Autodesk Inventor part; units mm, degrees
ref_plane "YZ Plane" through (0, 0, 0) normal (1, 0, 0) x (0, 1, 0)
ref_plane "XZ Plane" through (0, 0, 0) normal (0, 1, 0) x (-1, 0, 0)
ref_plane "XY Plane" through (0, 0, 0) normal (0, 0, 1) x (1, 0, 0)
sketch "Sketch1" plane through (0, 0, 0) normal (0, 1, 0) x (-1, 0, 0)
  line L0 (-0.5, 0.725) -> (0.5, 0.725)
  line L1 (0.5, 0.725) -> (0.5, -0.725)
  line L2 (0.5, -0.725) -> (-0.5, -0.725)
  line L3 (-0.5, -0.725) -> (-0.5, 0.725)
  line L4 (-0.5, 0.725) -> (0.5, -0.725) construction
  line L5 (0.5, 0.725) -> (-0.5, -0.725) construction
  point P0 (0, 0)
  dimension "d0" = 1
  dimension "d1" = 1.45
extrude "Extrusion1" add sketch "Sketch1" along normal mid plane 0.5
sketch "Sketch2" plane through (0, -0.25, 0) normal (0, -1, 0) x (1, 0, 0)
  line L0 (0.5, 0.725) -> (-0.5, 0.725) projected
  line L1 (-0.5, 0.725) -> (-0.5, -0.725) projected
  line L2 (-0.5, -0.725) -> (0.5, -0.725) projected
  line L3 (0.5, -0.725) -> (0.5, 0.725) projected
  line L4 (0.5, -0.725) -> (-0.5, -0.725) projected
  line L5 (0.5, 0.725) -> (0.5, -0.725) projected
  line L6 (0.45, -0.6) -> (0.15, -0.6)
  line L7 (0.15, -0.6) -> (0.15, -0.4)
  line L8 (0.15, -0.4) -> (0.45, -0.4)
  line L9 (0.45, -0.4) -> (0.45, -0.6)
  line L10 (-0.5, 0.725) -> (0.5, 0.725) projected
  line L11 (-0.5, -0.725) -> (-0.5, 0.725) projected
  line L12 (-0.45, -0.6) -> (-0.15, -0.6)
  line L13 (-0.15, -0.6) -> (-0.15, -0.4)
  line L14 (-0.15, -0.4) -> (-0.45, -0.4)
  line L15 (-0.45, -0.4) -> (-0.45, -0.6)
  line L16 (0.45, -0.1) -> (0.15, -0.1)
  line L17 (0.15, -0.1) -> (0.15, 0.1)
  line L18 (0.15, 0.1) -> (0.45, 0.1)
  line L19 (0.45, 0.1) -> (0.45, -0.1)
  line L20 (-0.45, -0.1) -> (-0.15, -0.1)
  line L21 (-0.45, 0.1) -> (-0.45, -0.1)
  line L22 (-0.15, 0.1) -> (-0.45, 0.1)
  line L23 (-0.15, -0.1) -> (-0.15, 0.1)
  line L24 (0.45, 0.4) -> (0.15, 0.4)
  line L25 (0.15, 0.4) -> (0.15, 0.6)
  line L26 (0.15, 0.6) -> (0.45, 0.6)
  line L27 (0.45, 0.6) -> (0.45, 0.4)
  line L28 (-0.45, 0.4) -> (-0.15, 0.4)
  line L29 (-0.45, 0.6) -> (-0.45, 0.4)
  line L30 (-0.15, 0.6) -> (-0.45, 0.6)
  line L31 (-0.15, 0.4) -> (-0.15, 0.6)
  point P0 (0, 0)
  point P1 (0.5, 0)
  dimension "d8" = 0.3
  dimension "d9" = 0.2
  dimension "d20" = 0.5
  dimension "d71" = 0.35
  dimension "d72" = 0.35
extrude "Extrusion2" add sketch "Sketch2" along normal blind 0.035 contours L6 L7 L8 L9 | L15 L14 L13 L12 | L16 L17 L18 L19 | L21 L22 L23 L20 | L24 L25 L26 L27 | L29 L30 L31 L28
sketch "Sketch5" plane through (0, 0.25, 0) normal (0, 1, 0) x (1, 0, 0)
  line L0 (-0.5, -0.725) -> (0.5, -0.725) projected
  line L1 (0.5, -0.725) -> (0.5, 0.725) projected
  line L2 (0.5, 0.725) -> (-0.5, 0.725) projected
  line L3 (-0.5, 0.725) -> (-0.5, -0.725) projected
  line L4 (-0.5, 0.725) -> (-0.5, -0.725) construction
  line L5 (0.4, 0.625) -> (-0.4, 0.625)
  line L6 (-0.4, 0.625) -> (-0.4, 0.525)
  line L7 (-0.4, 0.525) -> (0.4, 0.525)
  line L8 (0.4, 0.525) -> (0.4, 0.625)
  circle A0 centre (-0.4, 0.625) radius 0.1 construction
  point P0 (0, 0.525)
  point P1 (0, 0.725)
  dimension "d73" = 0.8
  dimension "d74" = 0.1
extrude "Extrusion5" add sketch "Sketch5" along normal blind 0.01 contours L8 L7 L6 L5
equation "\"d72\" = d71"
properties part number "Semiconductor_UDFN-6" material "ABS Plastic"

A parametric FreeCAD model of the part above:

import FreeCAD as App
import Part
import Sketcher
from FreeCAD import Vector
Q = App.Units.Quantity

doc = App.newDocument("Part")
body = doc.addObject("PartDesign::Body", "Body")

sketch1 = body.newObject("Sketcher::SketchObject", "Sketch")
sketch1.AttachmentSupport = (doc.getObject("XZ_Plane"), [""])
sketch1.MapMode = "FlatFace"
sketch1.addGeometry(Part.LineSegment(Vector(-0.5, 0.725, 0), Vector(0.5, 0.725, 0)), False)
sketch1.addGeometry(Part.LineSegment(Vector(0.5, 0.725, 0), Vector(0.5, -0.725, 0)), False)
sketch1.addGeometry(Part.LineSegment(Vector(0.5, -0.725, 0), Vector(-0.5, -0.725, 0)), False)
sketch1.addGeometry(Part.LineSegment(Vector(-0.5, -0.725, 0), Vector(-0.5, 0.725, 0)), False)
sketch1.addConstraint(Sketcher.Constraint("Coincident", 0, 2, 1, 1))
sketch1.addConstraint(Sketcher.Constraint("Coincident", 1, 2, 2, 1))
sketch1.addConstraint(Sketcher.Constraint("Coincident", 2, 2, 3, 1))
sketch1.addConstraint(Sketcher.Constraint("Coincident", 3, 2, 0, 1))
sketch1.addConstraint(Sketcher.Constraint("Horizontal", 0))
sketch1.addConstraint(Sketcher.Constraint("Vertical", 1))
sketch1.addConstraint(Sketcher.Constraint("Horizontal", 2))
sketch1.addConstraint(Sketcher.Constraint("Vertical", 3))
sketch1.addConstraint(Sketcher.Constraint("Symmetric", 0, 2, 2, 2, -1, 1))
sketch1.addConstraint(Sketcher.Constraint("DistanceX", 0, 1, 0, 2, Q("1 mm")))
sketch1.addConstraint(Sketcher.Constraint("DistanceY", 1, 2, 1, 1, Q("1.45 mm")))
pad1 = body.newObject("PartDesign::Pad", "Pad")
pad1.Profile = sketch1
pad1.Length = 0.5
pad1.Midplane = True

sketch2 = body.newObject("Sketcher::SketchObject", "Sketch001")
sketch2.AttachmentSupport = (doc.getObject("XZ_Plane"), [""])
sketch2.MapMode = "FlatFace"
sketch2.AttachmentOffset = App.Placement(Vector(0, 0, 0.25), App.Rotation())
sketch2.addGeometry(Part.LineSegment(Vector(0.15, -0.6, 0), Vector(0.45, -0.6, 0)), False)
sketch2.addGeometry(Part.LineSegment(Vector(0.45, -0.6, 0), Vector(0.45, -0.4, 0)), False)
sketch2.addGeometry(Part.LineSegment(Vector(0.45, -0.4, 0), Vector(0.15, -0.4, 0)), False)
sketch2.addGeometry(Part.LineSegment(Vector(0.15, -0.4, 0), Vector(0.15, -0.6, 0)), False)
sketch2.addGeometry(Part.LineSegment(Vector(-0.45, -0.4, 0), Vector(-0.45, -0.6, 0)), False)
sketch2.addGeometry(Part.LineSegment(Vector(-0.45, -0.6, 0), Vector(-0.15, -0.6, 0)), False)
sketch2.addGeometry(Part.LineSegment(Vector(-0.15, -0.6, 0), Vector(-0.15, -0.4, 0)), False)
sketch2.addGeometry(Part.LineSegment(Vector(-0.15, -0.4, 0), Vector(-0.45, -0.4, 0)), False)
sketch2.addGeometry(Part.LineSegment(Vector(0.15, -0.1, 0), Vector(0.45, -0.1, 0)), False)
sketch2.addGeometry(Part.LineSegment(Vector(0.45, -0.1, 0), Vector(0.45, 0.1, 0)), False)
sketch2.addGeometry(Part.LineSegment(Vector(0.45, 0.1, 0), Vector(0.15, 0.1, 0)), False)
sketch2.addGeometry(Part.LineSegment(Vector(0.15, 0.1, 0), Vector(0.15, -0.1, 0)), False)
sketch2.addGeometry(Part.LineSegment(Vector(-0.45, 0.1, 0), Vector(-0.45, -0.1, 0)), False)
sketch2.addGeometry(Part.LineSegment(Vector(-0.45, -0.1, 0), Vector(-0.15, -0.1, 0)), False)
sketch2.addGeometry(Part.LineSegment(Vector(-0.15, -0.1, 0), Vector(-0.15, 0.1, 0)), False)
sketch2.addGeometry(Part.LineSegment(Vector(-0.15, 0.1, 0), Vector(-0.45, 0.1, 0)), False)
sketch2.addGeometry(Part.LineSegment(Vector(0.15, 0.4, 0), Vector(0.45, 0.4, 0)), False)
sketch2.addGeometry(Part.LineSegment(Vector(0.45, 0.4, 0), Vector(0.45, 0.6, 0)), False)
sketch2.addGeometry(Part.LineSegment(Vector(0.45, 0.6, 0), Vector(0.15, 0.6, 0)), False)
sketch2.addGeometry(Part.LineSegment(Vector(0.15, 0.6, 0), Vector(0.15, 0.4, 0)), False)
sketch2.addGeometry(Part.LineSegment(Vector(-0.45, 0.6, 0), Vector(-0.45, 0.4, 0)), False)
sketch2.addGeometry(Part.LineSegment(Vector(-0.45, 0.4, 0), Vector(-0.15, 0.4, 0)), False)
sketch2.addGeometry(Part.LineSegment(Vector(-0.15, 0.4, 0), Vector(-0.15, 0.6, 0)), False)
sketch2.addGeometry(Part.LineSegment(Vector(-0.15, 0.6, 0), Vector(-0.45, 0.6, 0)), False)
sketch2.addConstraint(Sketcher.Constraint("Coincident", 0, 2, 1, 1))
sketch2.addConstraint(Sketcher.Constraint("Coincident", 1, 2, 2, 1))
sketch2.addConstraint(Sketcher.Constraint("Coincident", 2, 2, 3, 1))
sketch2.addConstraint(Sketcher.Constraint("Coincident", 3, 2, 0, 1))
sketch2.addConstraint(Sketcher.Constraint("Coincident", 4, 2, 5, 1))
sketch2.addConstraint(Sketcher.Constraint("Coincident", 5, 2, 6, 1))
sketch2.addConstraint(Sketcher.Constraint("Coincident", 6, 2, 7, 1))
sketch2.addConstraint(Sketcher.Constraint("Coincident", 7, 2, 4, 1))
sketch2.addConstraint(Sketcher.Constraint("Coincident", 8, 2, 9, 1))
sketch2.addConstraint(Sketcher.Constraint("Coincident", 9, 2, 10, 1))
sketch2.addConstraint(Sketcher.Constraint("Coincident", 10, 2, 11, 1))
sketch2.addConstraint(Sketcher.Constraint("Coincident", 11, 2, 8, 1))
sketch2.addConstraint(Sketcher.Constraint("Coincident", 12, 2, 13, 1))
sketch2.addConstraint(Sketcher.Constraint("Coincident", 13, 2, 14, 1))
sketch2.addConstraint(Sketcher.Constraint("Coincident", 14, 2, 15, 1))
sketch2.addConstraint(Sketcher.Constraint("Coincident", 15, 2, 12, 1))
sketch2.addConstraint(Sketcher.Constraint("Coincident", 16, 2, 17, 1))
sketch2.addConstraint(Sketcher.Constraint("Coincident", 17, 2, 18, 1))
sketch2.addConstraint(Sketcher.Constraint("Coincident", 18, 2, 19, 1))
sketch2.addConstraint(Sketcher.Constraint("Coincident", 19, 2, 16, 1))
sketch2.addConstraint(Sketcher.Constraint("Coincident", 20, 2, 21, 1))
sketch2.addConstraint(Sketcher.Constraint("Coincident", 21, 2, 22, 1))
sketch2.addConstraint(Sketcher.Constraint("Coincident", 22, 2, 23, 1))
sketch2.addConstraint(Sketcher.Constraint("Coincident", 23, 2, 20, 1))
sketch2.addConstraint(Sketcher.Constraint("Horizontal", 0))
sketch2.addConstraint(Sketcher.Constraint("Vertical", 1))
sketch2.addConstraint(Sketcher.Constraint("Horizontal", 2))
sketch2.addConstraint(Sketcher.Constraint("Vertical", 3))
sketch2.addConstraint(Sketcher.Constraint("Vertical", 4))
sketch2.addConstraint(Sketcher.Constraint("Horizontal", 5))
sketch2.addConstraint(Sketcher.Constraint("Vertical", 6))
sketch2.addConstraint(Sketcher.Constraint("Horizontal", 7))
sketch2.addConstraint(Sketcher.Constraint("Horizontal", 8))
sketch2.addConstraint(Sketcher.Constraint("Vertical", 9))
sketch2.addConstraint(Sketcher.Constraint("Horizontal", 10))
sketch2.addConstraint(Sketcher.Constraint("Vertical", 11))
sketch2.addConstraint(Sketcher.Constraint("Vertical", 12))
sketch2.addConstraint(Sketcher.Constraint("Horizontal", 13))
sketch2.addConstraint(Sketcher.Constraint("Vertical", 14))
sketch2.addConstraint(Sketcher.Constraint("Horizontal", 15))
sketch2.addConstraint(Sketcher.Constraint("Horizontal", 16))
sketch2.addConstraint(Sketcher.Constraint("Vertical", 17))
sketch2.addConstraint(Sketcher.Constraint("Horizontal", 18))
sketch2.addConstraint(Sketcher.Constraint("Vertical", 19))
sketch2.addConstraint(Sketcher.Constraint("Vertical", 20))
sketch2.addConstraint(Sketcher.Constraint("Horizontal", 21))
sketch2.addConstraint(Sketcher.Constraint("Vertical", 22))
sketch2.addConstraint(Sketcher.Constraint("Horizontal", 23))
sketch2.addConstraint(Sketcher.Constraint("Symmetric", 9, 2, 12, 2, -1, 1))
sketch2.addConstraint(Sketcher.Constraint("Symmetric", 11, 2, 14, 2, -1, 1))
sketch2.addConstraint(Sketcher.Constraint("Symmetric", 7, 2, 16, 2, -1, 1))
sketch2.addConstraint(Sketcher.Constraint("Symmetric", 5, 2, 18, 2, -1, 1))
sketch2.addConstraint(Sketcher.Constraint("Symmetric", 1, 2, 20, 2, -1, 1))
sketch2.addConstraint(Sketcher.Constraint("Symmetric", 3, 2, 22, 2, -1, 1))
sketch2.addConstraint(Sketcher.Constraint("Symmetric", 0, 2, 4, 2, -2))
sketch2.addConstraint(Sketcher.Constraint("Symmetric", 2, 2, 6, 2, -2))
sketch2.addConstraint(Sketcher.Constraint("Horizontal", 11, 2, 12, 2))
sketch2.addConstraint(Sketcher.Constraint("Vertical", 1, 2, 8, 2))
sketch2.addConstraint(Sketcher.Constraint("Vertical", 3, 2, 10, 2))
sketch2.addConstraint(Sketcher.Constraint("Equal", 6, 9))
sketch2.addConstraint(Sketcher.Constraint("DistanceX", 0, 1, 0, 2, Q("0.3 mm")))
sketch2.addConstraint(Sketcher.Constraint("DistanceY", 1, 1, 1, 2, Q("0.2 mm")))
sketch2.addConstraint(Sketcher.Constraint("DistanceX", 5, 2, 3, 2, Q("0.3 mm")))
sketch2.addConstraint(Sketcher.Constraint("DistanceY", 1, 2, 8, 2, Q("0.3 mm")))
pad2 = body.newObject("PartDesign::Pad", "Pad001")
pad2.Profile = sketch2
pad2.Length = 0.035

sketch3 = body.newObject("Sketcher::SketchObject", "Sketch002")
sketch3.AttachmentSupport = (doc.getObject("XZ_Plane"), [""])
sketch3.MapMode = "FlatFace"
sketch3.AttachmentOffset = App.Placement(Vector(0, 0, -0.25), App.Rotation())
sketch3.addGeometry(Part.LineSegment(Vector(0.4, -0.525, 0), Vector(0.4, -0.625, 0)), False)
sketch3.addGeometry(Part.LineSegment(Vector(0.4, -0.625, 0), Vector(-0.4, -0.625, 0)), False)
sketch3.addGeometry(Part.LineSegment(Vector(-0.4, -0.625, 0), Vector(-0.4, -0.525, 0)), False)
sketch3.addGeometry(Part.LineSegment(Vector(-0.4, -0.525, 0), Vector(0.4, -0.525, 0)), False)
sketch3.addConstraint(Sketcher.Constraint("Coincident", 0, 2, 1, 1))
sketch3.addConstraint(Sketcher.Constraint("Coincident", 1, 2, 2, 1))
sketch3.addConstraint(Sketcher.Constraint("Coincident", 2, 2, 3, 1))
sketch3.addConstraint(Sketcher.Constraint("Coincident", 3, 2, 0, 1))
sketch3.addConstraint(Sketcher.Constraint("Vertical", 0))
sketch3.addConstraint(Sketcher.Constraint("Horizontal", 1))
sketch3.addConstraint(Sketcher.Constraint("Vertical", 2))
sketch3.addConstraint(Sketcher.Constraint("Horizontal", 3))
sketch3.addConstraint(Sketcher.Constraint("DistanceX", 1, 2, 1, 1, Q("0.8 mm")))
sketch3.addConstraint(Sketcher.Constraint("DistanceY", 0, 2, 0, 1, Q("0.1 mm")))
sketch3.addConstraint(Sketcher.Constraint("DistanceX", -1, 1, 0, 2, Q("0.4 mm")))
sketch3.addConstraint(Sketcher.Constraint("DistanceY", 0, 2, -1, 1, Q("0.625 mm")))
pad3 = body.newObject("PartDesign::Pad", "Pad002")
pad3.Profile = sketch3
pad3.Length = 0.01
pad3.Reversed = True

doc.recompute()
